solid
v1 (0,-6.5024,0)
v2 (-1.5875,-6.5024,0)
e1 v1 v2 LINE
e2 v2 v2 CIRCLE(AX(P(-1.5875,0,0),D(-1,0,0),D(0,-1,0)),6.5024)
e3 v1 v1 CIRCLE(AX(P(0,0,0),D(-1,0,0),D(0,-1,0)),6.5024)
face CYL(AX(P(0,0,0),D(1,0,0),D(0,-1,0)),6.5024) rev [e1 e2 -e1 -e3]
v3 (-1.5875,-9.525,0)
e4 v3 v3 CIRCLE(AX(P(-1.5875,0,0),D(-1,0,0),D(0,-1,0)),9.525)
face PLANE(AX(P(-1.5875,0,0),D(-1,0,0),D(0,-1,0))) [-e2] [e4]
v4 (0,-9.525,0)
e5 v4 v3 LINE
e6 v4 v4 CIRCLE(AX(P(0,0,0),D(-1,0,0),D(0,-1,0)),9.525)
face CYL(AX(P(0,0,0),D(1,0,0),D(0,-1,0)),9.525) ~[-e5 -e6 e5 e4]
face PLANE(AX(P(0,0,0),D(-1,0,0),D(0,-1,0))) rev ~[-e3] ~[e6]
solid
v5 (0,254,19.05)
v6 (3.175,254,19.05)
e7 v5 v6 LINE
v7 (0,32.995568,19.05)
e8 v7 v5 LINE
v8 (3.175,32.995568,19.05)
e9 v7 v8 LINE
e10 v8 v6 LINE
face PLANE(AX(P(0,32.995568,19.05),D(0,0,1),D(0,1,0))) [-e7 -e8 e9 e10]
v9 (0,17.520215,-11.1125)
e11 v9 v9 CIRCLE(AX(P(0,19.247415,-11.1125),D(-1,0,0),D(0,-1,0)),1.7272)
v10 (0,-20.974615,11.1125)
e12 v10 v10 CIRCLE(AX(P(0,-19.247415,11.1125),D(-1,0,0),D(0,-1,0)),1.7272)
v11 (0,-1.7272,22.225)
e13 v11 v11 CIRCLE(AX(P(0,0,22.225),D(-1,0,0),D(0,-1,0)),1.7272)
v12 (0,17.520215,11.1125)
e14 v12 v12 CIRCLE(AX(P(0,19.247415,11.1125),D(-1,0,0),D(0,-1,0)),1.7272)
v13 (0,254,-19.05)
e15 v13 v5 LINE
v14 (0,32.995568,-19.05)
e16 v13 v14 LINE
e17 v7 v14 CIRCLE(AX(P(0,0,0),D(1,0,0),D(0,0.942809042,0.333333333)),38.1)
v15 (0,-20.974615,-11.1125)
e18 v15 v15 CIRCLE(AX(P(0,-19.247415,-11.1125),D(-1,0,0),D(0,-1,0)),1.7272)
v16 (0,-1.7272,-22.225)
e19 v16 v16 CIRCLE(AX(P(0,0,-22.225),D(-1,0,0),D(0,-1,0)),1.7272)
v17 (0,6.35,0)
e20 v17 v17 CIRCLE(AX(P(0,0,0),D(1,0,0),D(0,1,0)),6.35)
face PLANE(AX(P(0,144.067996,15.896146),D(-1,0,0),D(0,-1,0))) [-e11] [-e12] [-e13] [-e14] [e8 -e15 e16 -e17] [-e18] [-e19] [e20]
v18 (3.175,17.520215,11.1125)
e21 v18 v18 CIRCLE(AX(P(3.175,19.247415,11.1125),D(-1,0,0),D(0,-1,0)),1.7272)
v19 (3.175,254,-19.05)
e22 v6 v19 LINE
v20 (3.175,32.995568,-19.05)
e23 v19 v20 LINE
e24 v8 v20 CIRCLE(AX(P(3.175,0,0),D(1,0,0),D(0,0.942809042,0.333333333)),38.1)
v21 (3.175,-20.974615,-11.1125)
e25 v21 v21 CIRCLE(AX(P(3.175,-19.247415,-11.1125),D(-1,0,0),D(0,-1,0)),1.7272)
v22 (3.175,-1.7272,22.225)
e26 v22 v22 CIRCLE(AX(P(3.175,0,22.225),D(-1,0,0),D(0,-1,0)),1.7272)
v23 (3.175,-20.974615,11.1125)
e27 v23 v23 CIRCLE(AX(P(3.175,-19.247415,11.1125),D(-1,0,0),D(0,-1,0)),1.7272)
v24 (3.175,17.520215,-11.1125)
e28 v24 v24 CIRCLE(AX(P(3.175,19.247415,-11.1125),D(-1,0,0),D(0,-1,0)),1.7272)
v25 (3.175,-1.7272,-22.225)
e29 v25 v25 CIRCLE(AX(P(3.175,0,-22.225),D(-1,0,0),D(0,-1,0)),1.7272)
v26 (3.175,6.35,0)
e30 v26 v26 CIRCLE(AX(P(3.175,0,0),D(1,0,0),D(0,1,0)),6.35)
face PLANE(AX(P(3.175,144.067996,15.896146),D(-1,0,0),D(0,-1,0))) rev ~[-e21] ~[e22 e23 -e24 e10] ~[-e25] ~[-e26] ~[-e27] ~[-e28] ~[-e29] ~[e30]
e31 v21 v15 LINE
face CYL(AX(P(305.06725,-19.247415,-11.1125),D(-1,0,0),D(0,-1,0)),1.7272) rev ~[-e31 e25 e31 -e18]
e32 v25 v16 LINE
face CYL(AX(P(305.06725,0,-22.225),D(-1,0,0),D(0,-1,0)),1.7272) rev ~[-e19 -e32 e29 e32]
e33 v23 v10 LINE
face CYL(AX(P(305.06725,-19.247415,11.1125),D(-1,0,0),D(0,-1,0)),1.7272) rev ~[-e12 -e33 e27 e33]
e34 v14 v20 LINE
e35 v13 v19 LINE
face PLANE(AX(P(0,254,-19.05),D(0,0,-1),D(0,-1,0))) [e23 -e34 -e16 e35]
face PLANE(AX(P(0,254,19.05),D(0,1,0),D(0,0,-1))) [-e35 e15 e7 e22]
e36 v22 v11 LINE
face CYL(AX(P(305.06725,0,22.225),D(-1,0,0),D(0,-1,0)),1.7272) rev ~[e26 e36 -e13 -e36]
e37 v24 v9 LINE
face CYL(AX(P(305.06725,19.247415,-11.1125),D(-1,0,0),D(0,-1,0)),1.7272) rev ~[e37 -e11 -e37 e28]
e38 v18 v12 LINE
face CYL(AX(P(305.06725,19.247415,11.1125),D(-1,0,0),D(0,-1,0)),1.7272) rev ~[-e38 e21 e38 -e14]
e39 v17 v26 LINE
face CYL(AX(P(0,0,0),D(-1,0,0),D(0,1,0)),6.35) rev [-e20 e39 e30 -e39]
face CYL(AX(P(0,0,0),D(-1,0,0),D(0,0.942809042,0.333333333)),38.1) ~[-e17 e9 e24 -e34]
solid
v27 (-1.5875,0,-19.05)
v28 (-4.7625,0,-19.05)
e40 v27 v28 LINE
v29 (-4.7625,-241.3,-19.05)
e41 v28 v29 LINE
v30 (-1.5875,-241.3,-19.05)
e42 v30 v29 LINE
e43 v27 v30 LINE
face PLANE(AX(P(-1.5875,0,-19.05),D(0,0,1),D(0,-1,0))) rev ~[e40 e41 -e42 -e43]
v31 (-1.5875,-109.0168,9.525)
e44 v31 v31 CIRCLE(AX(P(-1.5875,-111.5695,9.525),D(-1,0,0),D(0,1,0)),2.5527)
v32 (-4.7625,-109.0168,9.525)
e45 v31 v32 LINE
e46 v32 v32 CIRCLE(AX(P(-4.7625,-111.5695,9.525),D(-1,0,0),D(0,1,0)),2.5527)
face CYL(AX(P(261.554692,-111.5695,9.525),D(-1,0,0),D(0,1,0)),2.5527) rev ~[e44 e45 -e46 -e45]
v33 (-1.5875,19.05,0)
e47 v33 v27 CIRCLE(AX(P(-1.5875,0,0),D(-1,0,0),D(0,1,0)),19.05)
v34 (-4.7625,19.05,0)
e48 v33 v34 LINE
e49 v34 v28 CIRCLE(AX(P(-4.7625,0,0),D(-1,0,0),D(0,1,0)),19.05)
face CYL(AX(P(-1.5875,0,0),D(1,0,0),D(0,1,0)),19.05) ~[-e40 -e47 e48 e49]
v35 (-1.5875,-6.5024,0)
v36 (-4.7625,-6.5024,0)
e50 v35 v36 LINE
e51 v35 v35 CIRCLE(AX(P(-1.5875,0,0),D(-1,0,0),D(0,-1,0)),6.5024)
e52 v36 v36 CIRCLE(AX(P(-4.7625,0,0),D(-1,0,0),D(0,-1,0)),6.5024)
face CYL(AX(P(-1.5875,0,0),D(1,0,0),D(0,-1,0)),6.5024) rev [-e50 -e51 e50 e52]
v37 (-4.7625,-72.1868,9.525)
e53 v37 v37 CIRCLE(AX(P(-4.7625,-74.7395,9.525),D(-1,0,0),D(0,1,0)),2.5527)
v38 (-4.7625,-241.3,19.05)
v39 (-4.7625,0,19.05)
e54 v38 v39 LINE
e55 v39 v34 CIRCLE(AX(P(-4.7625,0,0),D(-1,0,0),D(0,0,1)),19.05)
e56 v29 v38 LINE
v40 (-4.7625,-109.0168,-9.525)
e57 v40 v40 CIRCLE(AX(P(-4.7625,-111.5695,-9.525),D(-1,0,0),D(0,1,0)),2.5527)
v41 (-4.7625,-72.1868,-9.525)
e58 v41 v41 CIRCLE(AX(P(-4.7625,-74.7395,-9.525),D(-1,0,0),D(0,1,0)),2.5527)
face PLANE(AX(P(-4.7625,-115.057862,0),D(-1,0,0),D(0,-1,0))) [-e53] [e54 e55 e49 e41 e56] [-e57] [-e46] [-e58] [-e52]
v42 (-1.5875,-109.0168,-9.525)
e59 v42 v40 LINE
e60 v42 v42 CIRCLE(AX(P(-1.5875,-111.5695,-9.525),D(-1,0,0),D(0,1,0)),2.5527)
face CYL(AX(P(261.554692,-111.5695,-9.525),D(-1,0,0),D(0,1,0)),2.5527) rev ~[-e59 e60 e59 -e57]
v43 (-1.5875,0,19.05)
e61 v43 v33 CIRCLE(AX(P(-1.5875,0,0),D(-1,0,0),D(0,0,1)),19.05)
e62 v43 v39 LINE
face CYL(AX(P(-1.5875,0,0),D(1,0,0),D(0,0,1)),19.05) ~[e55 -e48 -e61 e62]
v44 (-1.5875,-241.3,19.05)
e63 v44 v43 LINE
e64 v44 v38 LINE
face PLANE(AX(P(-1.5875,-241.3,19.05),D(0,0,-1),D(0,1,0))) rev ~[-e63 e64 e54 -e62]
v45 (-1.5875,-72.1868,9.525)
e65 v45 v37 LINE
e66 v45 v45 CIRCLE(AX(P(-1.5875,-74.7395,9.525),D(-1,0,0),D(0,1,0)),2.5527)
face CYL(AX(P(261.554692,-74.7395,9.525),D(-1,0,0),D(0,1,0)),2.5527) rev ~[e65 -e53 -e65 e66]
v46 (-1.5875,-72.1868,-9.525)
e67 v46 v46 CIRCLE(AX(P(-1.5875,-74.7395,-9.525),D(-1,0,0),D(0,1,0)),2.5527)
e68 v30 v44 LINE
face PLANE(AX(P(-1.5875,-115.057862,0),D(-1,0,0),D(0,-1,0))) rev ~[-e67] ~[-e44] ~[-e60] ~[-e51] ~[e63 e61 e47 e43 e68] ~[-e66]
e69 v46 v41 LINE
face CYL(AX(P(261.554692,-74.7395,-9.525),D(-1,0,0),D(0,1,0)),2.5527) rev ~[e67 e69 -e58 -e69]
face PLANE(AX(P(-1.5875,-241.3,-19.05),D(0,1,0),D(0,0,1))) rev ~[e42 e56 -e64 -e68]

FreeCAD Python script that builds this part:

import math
import FreeCAD as App
import Part
import Sketcher
Q = App.Units.Quantity

doc = App.newDocument("Part")
body = doc.addObject("PartDesign::Body", "Body")

sketch1 = body.newObject("Sketcher::SketchObject", "Sketch")
sketch1.AttachmentSupport = (doc.getObject("YZ_Plane"), [""])
sketch1.MapMode = "FlatFace"
sketch1.addGeometry(Part.ArcOfCircle(Part.Circle(App.Vector(0, 0, 0), App.Vector(0, 0, 1), 38), math.radians(19), math.radians(341)), False)
sketch1.addGeometry(Part.LineSegment(App.Vector(36, -13, 0), App.Vector(254, -13, 0)), False)
sketch1.addGeometry(Part.LineSegment(App.Vector(254, -13, 0), App.Vector(254, 13, 0)), False)
sketch1.addGeometry(Part.LineSegment(App.Vector(254, 13, 0), App.Vector(36, 13, 0)), False)
sketch1.addGeometry(Part.Circle(App.Vector(0, 0, 0), App.Vector(0, 0, 1), 6), False)
sketch1.addConstraint(Sketcher.Constraint("Coincident", 0, 2, 1, 1))
sketch1.addConstraint(Sketcher.Constraint("Coincident", 1, 2, 2, 1))
sketch1.addConstraint(Sketcher.Constraint("Coincident", 2, 2, 3, 1))
sketch1.addConstraint(Sketcher.Constraint("Coincident", 3, 2, 0, 1))
sketch1.addConstraint(Sketcher.Constraint("Horizontal", 1))
sketch1.addConstraint(Sketcher.Constraint("Vertical", 2))
sketch1.addConstraint(Sketcher.Constraint("Horizontal", 3))
sketch1.addConstraint(Sketcher.Constraint("Coincident", 0, 3, -1, 1))
sketch1.addConstraint(Sketcher.Constraint("Coincident", 4, 3, -1, 1))
sketch1.addConstraint(Sketcher.Constraint("Vertical", 0, 2, 3, 2))
sketch1.addConstraint(Sketcher.Constraint("Diameter", 4, Q("0.5 in")))
sketch1.addConstraint(Sketcher.Constraint("Radius", 0, Q("1.5 in")))
sketch1.addConstraint(Sketcher.Constraint("DistanceY", 2, 1, 2, 2, Q("1 in")))
sketch1.addConstraint(Sketcher.Constraint("DistanceX", -1, 1, 1, 2, Q("10 in")))
pad1 = body.newObject("PartDesign::Pad", "Pad")
pad1.Profile = sketch1
pad1.Length = Q("0.125 in")

sketch2 = body.newObject("Sketcher::SketchObject", "Sketch001")
sketch2.AttachmentSupport = (doc.getObject("YZ_Plane"), [""])
sketch2.MapMode = "FlatFace"
sketch2.AttachmentOffset = App.Placement(App.Vector(0, 0, 0.125 * 25.4), App.Rotation())
sketch2.addGeometry(Part.Circle(App.Vector(0, 22.2, 0), App.Vector(0, 0, 1), 1.7), False)
sketch2.addGeometry(Part.Circle(App.Vector(-19.2, -11.1, 0), App.Vector(0, 0, 1), 1.7), False)
sketch2.addGeometry(Part.Circle(App.Vector(-19.2, 11.1, 0), App.Vector(0, 0, 1), 1.7), False)
sketch2.addGeometry(Part.Circle(App.Vector(0, -22.2, 0), App.Vector(0, 0, 1), 1.7), False)
sketch2.addGeometry(Part.Circle(App.Vector(19.2, 11.1, 0), App.Vector(0, 0, 1), 1.7), False)
sketch2.addGeometry(Part.Circle(App.Vector(19.2, -11.1, 0), App.Vector(0, 0, 1), 1.7), False)
sketch2.addConstraint(Sketcher.Constraint("Equal", 0, 1))
sketch2.addConstraint(Sketcher.Constraint("Equal", 1, 2))
sketch2.addConstraint(Sketcher.Constraint("Equal", 2, 3))
sketch2.addConstraint(Sketcher.Constraint("Equal", 3, 4))
sketch2.addConstraint(Sketcher.Constraint("Equal", 4, 5))
sketch2.addConstraint(Sketcher.Constraint("Symmetric", 0, 3, 3, 3, -1, 1))
sketch2.addConstraint(Sketcher.Constraint("Symmetric", 1, 3, 4, 3, -1, 1))
sketch2.addConstraint(Sketcher.Constraint("Symmetric", 2, 3, 5, 3, -1, 1))
sketch2.addConstraint(Sketcher.Constraint("Symmetric", 2, 3, 4, 3, -2))
sketch2.addConstraint(Sketcher.Constraint("PointOnObject", 0, 3, -2))
sketch2.addConstraint(Sketcher.Constraint("Diameter", 0, Q("0.136 in")))
sketch2.addConstraint(Sketcher.Constraint("DistanceY", 3, 3, 0, 3, Q("1.75 in")))
sketch2.addConstraint(Sketcher.Constraint("DistanceY", 1, 3, -1, 1, Q("0.4375 in")))
sketch2.addConstraint(Sketcher.Constraint("DistanceX", 2, 3, 4, 3, 38.494829))
doc.recompute()
hole = body.newObject("PartDesign::Hole", "Hole")
hole.Profile = sketch2
hole.ThreadType = "None"
hole.Diameter = Q("0.136 in")
hole.DepthType = "ThroughAll"

sketch3 = body.newObject("Sketcher::SketchObject", "Sketch002")
sketch3.AttachmentSupport = (doc.getObject("YZ_Plane"), [""])
sketch3.MapMode = "FlatFace"
sketch3.addGeometry(Part.LineSegment(App.Vector(254, 19, 0), App.Vector(254, 13, 0)), False)
sketch3.addGeometry(Part.LineSegment(App.Vector(254, 13, 0), App.Vector(36, 13, 0)), False)
sketch3.addGeometry(Part.ArcOfCircle(Part.Circle(App.Vector(0, 0, 0), App.Vector(0, 0, 1), 38), math.radians(19.47), math.radians(30)), False)
sketch3.addGeometry(Part.LineSegment(App.Vector(33, 19, 0), App.Vector(254, 19, 0)), False)
sketch3.addGeometry(Part.LineSegment(App.Vector(36, -13, 0), App.Vector(254, -13, 0)), False)
sketch3.addGeometry(Part.LineSegment(App.Vector(254, -13, 0), App.Vector(254, -19, 0)), False)
sketch3.addGeometry(Part.LineSegment(App.Vector(254, -19, 0), App.Vector(33, -19, 0)), False)
sketch3.addGeometry(Part.ArcOfCircle(Part.Circle(App.Vector(0, 0, 0), App.Vector(0, 0, 1), 38), math.radians(-30), math.radians(-19.47)), False)
sketch3.addConstraint(Sketcher.Constraint("Coincident", 0, 2, 1, 1))
sketch3.addConstraint(Sketcher.Constraint("Coincident", 1, 2, 2, 1))
sketch3.addConstraint(Sketcher.Constraint("Coincident", 2, 2, 3, 1))
sketch3.addConstraint(Sketcher.Constraint("Coincident", 3, 2, 0, 1))
sketch3.addConstraint(Sketcher.Constraint("Coincident", 4, 2, 5, 1))
sketch3.addConstraint(Sketcher.Constraint("Coincident", 5, 2, 6, 1))
sketch3.addConstraint(Sketcher.Constraint("Coincident", 6, 2, 7, 1))
sketch3.addConstraint(Sketcher.Constraint("Coincident", 7, 2, 4, 1))
sketch3.addConstraint(Sketcher.Constraint("Vertical", 0))
sketch3.addConstraint(Sketcher.Constraint("Horizontal", 1))
sketch3.addConstraint(Sketcher.Constraint("Horizontal", 3))
sketch3.addConstraint(Sketcher.Constraint("Horizontal", 4))
sketch3.addConstraint(Sketcher.Constraint("Vertical", 5))
sketch3.addConstraint(Sketcher.Constraint("Horizontal", 6))
sketch3.addConstraint(Sketcher.Constraint("Coincident", 2, 3, -1, 1))
sketch3.addConstraint(Sketcher.Constraint("Coincident", 7, 3, -1, 1))
sketch3.addConstraint(Sketcher.Constraint("Equal", 2, 7))
sketch3.addConstraint(Sketcher.Constraint("Symmetric", 0, 2, 4, 2, -1))
sketch3.addConstraint(Sketcher.Constraint("Vertical", 2, 2, 6, 2))
sketch3.addConstraint(Sketcher.Constraint("Radius", 2, Q("1.5 in")))
sketch3.addConstraint(Sketcher.Constraint("DistanceX", -1, 1, 0, 2, Q("10 in")))
sketch3.addConstraint(Sketcher.Constraint("DistanceY", 4, 2, 0, 2, Q("1 in")))
sketch3.addConstraint(Sketcher.Constraint("DistanceY", 0, 2, 0, 1, Q("0.25 in")))
pad2 = body.newObject("PartDesign::Pad", "Pad001")
pad2.Profile = sketch3
pad2.Length = Q("0.125 in")
body2 = doc.addObject("PartDesign::Body", "Body001")

sketch4 = body2.newObject("Sketcher::SketchObject", "Sketch003")
sketch4.AttachmentSupport = (doc.getObject("YZ_Plane001"), [""])
sketch4.MapMode = "FlatFace"
sketch4.addGeometry(Part.Circle(App.Vector(0, 0, 0), App.Vector(0, 0, 1), 10), False)
sketch4.addGeometry(Part.Circle(App.Vector(0, 0, 0), App.Vector(0, 0, 1), 7), False)
sketch4.addConstraint(Sketcher.Constraint("Coincident", 0, 3, -1, 1))
sketch4.addConstraint(Sketcher.Constraint("Coincident", 1, 3, -1, 1))
sketch4.addConstraint(Sketcher.Constraint("Diameter", 0, Q("0.75 in")))
sketch4.addConstraint(Sketcher.Constraint("Diameter", 1, Q("0.512 in")))
pad3 = body2.newObject("PartDesign::Pad", "Pad002")
pad3.Profile = sketch4
pad3.Length = Q("0.0625 in")
pad3.Reversed = True
body3 = doc.addObject("PartDesign::Body", "Body002")

sketch5 = body3.newObject("Sketcher::SketchObject", "Sketch004")
sketch5.AttachmentSupport = (doc.getObject("YZ_Plane002"), [""])
sketch5.MapMode = "FlatFace"
sketch5.AttachmentOffset = App.Placement(App.Vector(0, 0, -0.0625 * 25.4), App.Rotation())
sketch5.addGeometry(Part.LineSegment(App.Vector(-241, 19, 0), App.Vector(0, 19, 0)), False)
sketch5.addGeometry(Part.ArcOfCircle(Part.Circle(App.Vector(0, 0, 0), App.Vector(0, 0, 1), 19), math.radians(0), math.radians(90)), False)
sketch5.addGeometry(Part.ArcOfCircle(Part.Circle(App.Vector(0, 0, 0), App.Vector(0, 0, 1), 19), math.radians(-90), math.radians(0)), False)
sketch5.addGeometry(Part.LineSegment(App.Vector(0, -19, 0), App.Vector(-241, -19, 0)), False)
sketch5.addGeometry(Part.LineSegment(App.Vector(-241, -19, 0), App.Vector(-241, 19, 0)), False)
sketch5.addGeometry(Part.Circle(App.Vector(0, 0, 0), App.Vector(0, 0, 1), 7), False)
sketch5.addConstraint(Sketcher.Constraint("Tangent", 0, 2, 1, 2))
sketch5.addConstraint(Sketcher.Constraint("Tangent", 1, 1, 2, 2))
sketch5.addConstraint(Sketcher.Constraint("Tangent", 2, 1, 3, 1))
sketch5.addConstraint(Sketcher.Constraint("Coincident", 3, 2, 4, 1))
sketch5.addConstraint(Sketcher.Constraint("Coincident", 4, 2, 0, 1))
sketch5.addConstraint(Sketcher.Constraint("Horizontal", 0))
sketch5.addConstraint(Sketcher.Constraint("Horizontal", 3))
sketch5.addConstraint(Sketcher.Constraint("Vertical", 4))
sketch5.addConstraint(Sketcher.Constraint("Coincident", 1, 3, -1, 1))
sketch5.addConstraint(Sketcher.Constraint("Coincident", 5, 3, -1, 1))
sketch5.addConstraint(Sketcher.Constraint("Equal", 1, 2))
sketch5.addConstraint(Sketcher.Constraint("PointOnObject", 1, 1, -1))
sketch5.addConstraint(Sketcher.Constraint("Radius", 1, Q("0.75 in")))
sketch5.addConstraint(Sketcher.Constraint("Diameter", 5, Q("0.512 in")))
sketch5.addConstraint(Sketcher.Constraint("DistanceX", 0, 1, 0, 2, Q("9.5 in")))
pad4 = body3.newObject("PartDesign::Pad", "Pad003")
pad4.Profile = sketch5
pad4.Length = Q("0.125 in")
pad4.Reversed = True

sketch6 = body3.newObject("Sketcher::SketchObject", "Sketch005")
sketch6.AttachmentSupport = (doc.getObject("YZ_Plane002"), [""])
sketch6.MapMode = "FlatFace"
sketch6.AttachmentOffset = App.Placement(App.Vector(0, 0, -0.0625 * 25.4), App.Rotation())
sketch6.addGeometry(Part.Circle(App.Vector(-111.6, 9.5, 0), App.Vector(0, 0, 1), 2.6), False)
sketch6.addGeometry(Part.Circle(App.Vector(-74.7, 9.5, 0), App.Vector(0, 0, 1), 2.6), False)
sketch6.addGeometry(Part.Circle(App.Vector(-74.7, -9.5, 0), App.Vector(0, 0, 1), 2.6), False)
sketch6.addGeometry(Part.Circle(App.Vector(-111.6, -9.5, 0), App.Vector(0, 0, 1), 2.6), False)
sketch6.addConstraint(Sketcher.Constraint("Equal", 0, 1))
sketch6.addConstraint(Sketcher.Constraint("Equal", 1, 2))
sketch6.addConstraint(Sketcher.Constraint("Equal", 2, 3))
sketch6.addConstraint(Sketcher.Constraint("Symmetric", 1, 3, 2, 3, -1))
sketch6.addConstraint(Sketcher.Constraint("Symmetric", 0, 3, 3, 3, -1))
sketch6.addConstraint(Sketcher.Constraint("Horizontal", 0, 3, 1, 3))
sketch6.addConstraint(Sketcher.Constraint("Diameter", 0, Q("0.201 in")))
sketch6.addConstraint(Sketcher.Constraint("DistanceX", 0, 3, 1, 3, Q("1.45 in")))
sketch6.addConstraint(Sketcher.Constraint("DistanceY", 2, 3, 1, 3, Q("0.75 in")))
sketch6.addConstraint(Sketcher.Constraint("DistanceX", 0, 3, -1, 1, Q("4.3925 in")))
doc.recompute()
hole2 = body3.newObject("PartDesign::Hole", "Hole001")
hole2.Profile = sketch6
hole2.ThreadType = "None"
hole2.Diameter = Q("0.201 in")
hole2.DepthType = "ThroughAll"

doc.recompute()
